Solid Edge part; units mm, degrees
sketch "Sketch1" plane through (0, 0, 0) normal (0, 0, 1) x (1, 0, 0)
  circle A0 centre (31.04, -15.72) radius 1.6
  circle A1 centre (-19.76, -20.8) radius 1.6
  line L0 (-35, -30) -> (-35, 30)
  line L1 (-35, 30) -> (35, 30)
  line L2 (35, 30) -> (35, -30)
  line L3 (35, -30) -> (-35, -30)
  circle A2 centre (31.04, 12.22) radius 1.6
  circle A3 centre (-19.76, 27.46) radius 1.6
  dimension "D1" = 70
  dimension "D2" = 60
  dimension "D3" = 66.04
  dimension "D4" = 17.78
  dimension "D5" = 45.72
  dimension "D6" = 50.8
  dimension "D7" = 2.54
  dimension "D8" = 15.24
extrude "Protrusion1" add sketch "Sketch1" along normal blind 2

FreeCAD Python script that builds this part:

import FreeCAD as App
import Part
import Sketcher
Q = App.Units.Quantity


def add_polygon(sketch, points):
    """Adds a closed chain of lines whose ends are joined by coincident constraints."""
    first, n = sketch.GeometryCount, len(points)
    for a, b in zip(points, points[1:] + points[:1]):
        sketch.addGeometry(Part.LineSegment(App.Vector(*a, 0), App.Vector(*b, 0)), False)
    for i in range(n):
        sketch.addConstraint(Sketcher.Constraint("Coincident", first + i, 2, first + (i + 1) % n, 1))

doc = App.newDocument("Part")
body = doc.addObject("PartDesign::Body", "Body")

# Sketch on XY plane
sketch1 = body.newObject("Sketcher::SketchObject", "Sketch")
sketch1.AttachmentSupport = (doc.getObject("XY_Plane"), [""])
sketch1.MapMode = "FlatFace"
add_polygon(sketch1, [(-35, 30), (-35, -30), (35, -30), (35, 30)])  # lines 0-3
sketch1.addGeometry(Part.Circle(App.Vector(-19.76, -20.8, 0), App.Vector(0, 0, 1), 1.6), False)  # 4
sketch1.addGeometry(Part.Circle(App.Vector(31.04, -15.72, 0), App.Vector(0, 0, 1), 1.6), False)  # 5
sketch1.addGeometry(Part.Circle(App.Vector(-19.76, 27.46, 0), App.Vector(0, 0, 1), 1.6), False)  # 6
sketch1.addGeometry(Part.Circle(App.Vector(31.04, 12.22, 0), App.Vector(0, 0, 1), 1.6), False)  # 7
sketch1.addConstraint(Sketcher.Constraint("Vertical", 0))
sketch1.addConstraint(Sketcher.Constraint("Horizontal", 1))
sketch1.addConstraint(Sketcher.Constraint("Vertical", 2))
sketch1.addConstraint(Sketcher.Constraint("Horizontal", 3))
sketch1.addConstraint(Sketcher.Constraint("Equal", 4, 5))
sketch1.addConstraint(Sketcher.Constraint("Equal", 5, 6))
sketch1.addConstraint(Sketcher.Constraint("Equal", 6, 7))
sketch1.addConstraint(Sketcher.Constraint("Symmetric", 0, 2, 2, 2, -1, 1))
sketch1.addConstraint(Sketcher.Constraint("Vertical", 4, 3, 6, 3))
sketch1.addConstraint(Sketcher.Constraint("Vertical", 5, 3, 7, 3))
sketch1.addConstraint(Sketcher.Constraint("Diameter", 4, Q("3.2 mm")))
sketch1.addConstraint(Sketcher.Constraint("DistanceX", 1, 1, 1, 2, Q("70 mm")))
sketch1.addConstraint(Sketcher.Constraint("DistanceY", 0, 2, 0, 1, Q("60 mm")))
sketch1.addConstraint(Sketcher.Constraint("DistanceY", 4, 3, -1, 1, Q("20.8 mm")))
sketch1.addConstraint(Sketcher.Constraint("DistanceX", 4, 3, 5, 3, Q("50.8 mm")))
sketch1.addConstraint(Sketcher.Constraint("DistanceX", 4, 3, -1, 1, Q("19.76 mm")))
sketch1.addConstraint(Sketcher.Constraint("DistanceY", 5, 3, -1, 1, Q("15.72 mm")))
sketch1.addConstraint(Sketcher.Constraint("DistanceY", -1, 1, 6, 3, Q("27.46 mm")))
sketch1.addConstraint(Sketcher.Constraint("DistanceY", -1, 1, 7, 3, Q("12.22 mm")))
pad1 = body.newObject("PartDesign::Pad", "Pad")
pad1.Profile = sketch1
pad1.Length = 2

doc.recompute()
